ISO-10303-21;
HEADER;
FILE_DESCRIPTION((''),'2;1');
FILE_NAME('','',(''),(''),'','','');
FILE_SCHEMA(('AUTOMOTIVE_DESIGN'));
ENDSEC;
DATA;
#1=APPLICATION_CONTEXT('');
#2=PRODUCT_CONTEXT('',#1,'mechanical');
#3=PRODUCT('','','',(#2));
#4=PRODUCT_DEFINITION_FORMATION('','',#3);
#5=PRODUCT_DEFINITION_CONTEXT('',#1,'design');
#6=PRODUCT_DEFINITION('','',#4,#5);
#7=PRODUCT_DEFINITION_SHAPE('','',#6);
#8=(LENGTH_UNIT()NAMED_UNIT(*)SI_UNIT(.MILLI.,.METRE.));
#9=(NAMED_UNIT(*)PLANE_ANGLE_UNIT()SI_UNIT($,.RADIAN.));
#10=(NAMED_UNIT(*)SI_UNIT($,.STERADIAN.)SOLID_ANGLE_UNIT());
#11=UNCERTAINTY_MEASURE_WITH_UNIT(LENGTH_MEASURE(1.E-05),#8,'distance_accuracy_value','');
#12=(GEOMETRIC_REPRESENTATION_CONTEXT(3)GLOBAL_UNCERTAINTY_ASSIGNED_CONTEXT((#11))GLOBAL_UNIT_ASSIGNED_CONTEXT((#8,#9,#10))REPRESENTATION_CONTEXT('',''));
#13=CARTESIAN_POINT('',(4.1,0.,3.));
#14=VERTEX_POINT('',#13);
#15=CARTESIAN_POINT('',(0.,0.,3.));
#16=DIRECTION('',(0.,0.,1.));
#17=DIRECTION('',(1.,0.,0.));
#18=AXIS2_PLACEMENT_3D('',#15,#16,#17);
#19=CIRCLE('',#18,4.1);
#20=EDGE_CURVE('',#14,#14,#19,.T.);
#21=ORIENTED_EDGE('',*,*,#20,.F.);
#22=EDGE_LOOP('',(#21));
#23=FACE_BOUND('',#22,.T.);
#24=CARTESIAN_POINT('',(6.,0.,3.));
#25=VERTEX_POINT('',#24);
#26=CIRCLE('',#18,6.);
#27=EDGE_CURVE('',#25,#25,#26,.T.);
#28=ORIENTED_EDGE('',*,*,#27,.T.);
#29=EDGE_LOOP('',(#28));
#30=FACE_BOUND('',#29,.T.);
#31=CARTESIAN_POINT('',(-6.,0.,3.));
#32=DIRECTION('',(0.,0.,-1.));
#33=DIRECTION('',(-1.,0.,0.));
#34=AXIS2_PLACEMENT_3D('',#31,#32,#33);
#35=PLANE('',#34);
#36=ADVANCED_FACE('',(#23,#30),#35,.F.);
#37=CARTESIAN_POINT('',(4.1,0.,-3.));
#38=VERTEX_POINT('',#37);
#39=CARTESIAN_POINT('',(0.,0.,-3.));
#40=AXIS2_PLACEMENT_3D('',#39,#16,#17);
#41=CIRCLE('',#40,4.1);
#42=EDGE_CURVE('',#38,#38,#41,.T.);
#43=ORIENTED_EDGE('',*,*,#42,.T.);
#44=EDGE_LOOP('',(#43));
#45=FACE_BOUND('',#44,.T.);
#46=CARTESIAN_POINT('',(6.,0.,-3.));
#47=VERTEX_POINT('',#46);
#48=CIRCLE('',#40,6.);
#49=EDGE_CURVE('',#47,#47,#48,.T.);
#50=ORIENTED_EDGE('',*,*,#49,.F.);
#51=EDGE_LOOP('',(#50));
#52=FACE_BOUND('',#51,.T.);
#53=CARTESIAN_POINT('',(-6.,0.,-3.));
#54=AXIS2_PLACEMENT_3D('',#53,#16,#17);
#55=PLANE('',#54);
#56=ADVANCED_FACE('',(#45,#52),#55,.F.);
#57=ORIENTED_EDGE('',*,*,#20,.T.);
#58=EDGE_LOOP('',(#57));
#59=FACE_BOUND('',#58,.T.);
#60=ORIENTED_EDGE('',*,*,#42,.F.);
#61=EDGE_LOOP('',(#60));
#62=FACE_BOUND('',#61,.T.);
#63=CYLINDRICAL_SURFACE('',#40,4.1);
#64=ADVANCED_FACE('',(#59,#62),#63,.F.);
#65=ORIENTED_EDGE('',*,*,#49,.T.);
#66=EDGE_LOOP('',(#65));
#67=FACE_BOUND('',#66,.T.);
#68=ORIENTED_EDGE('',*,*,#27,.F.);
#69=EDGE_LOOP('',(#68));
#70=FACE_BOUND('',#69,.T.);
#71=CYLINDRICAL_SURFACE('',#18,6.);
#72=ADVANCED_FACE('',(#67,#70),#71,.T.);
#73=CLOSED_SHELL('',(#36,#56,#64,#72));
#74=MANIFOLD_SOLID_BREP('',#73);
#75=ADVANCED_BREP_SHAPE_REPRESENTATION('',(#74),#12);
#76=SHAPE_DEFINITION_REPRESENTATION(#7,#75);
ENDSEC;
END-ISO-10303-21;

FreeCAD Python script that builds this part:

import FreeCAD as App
import Part
import Sketcher

V = App.Vector
Q = App.Units.Quantity

doc = App.newDocument("Part")
params = doc.addObject("Spreadsheet::Sheet", "Params")
for row, (alias, value) in enumerate([
    ("sketch1_width", "6 mm"),
    ("revolution_angle", "360 deg"),
    ("sketch2_diameter", "8.2 mm"),
], start=1):
    params.set(f"A{row}", alias)
    params.set(f"B{row}", "=" + value)
    params.setAlias(f"B{row}", alias)

body = doc.addObject("PartDesign::Body", "Body")

# Sketch on XZ plane
sketch1 = body.newObject("Sketcher::SketchObject", "Sketch")
sketch1.AttachmentSupport = (doc.getObject("XZ_Plane"), [""])
sketch1.MapMode = "FlatFace"
sketch1.addGeometry([
    Part.LineSegment(V(-6, 3, 0), V(0, 3, 0)),
    Part.LineSegment(V(0, 3, 0), V(0, -3, 0)),
    Part.LineSegment(V(0, -3, 0), V(-6, -3, 0)),
    Part.LineSegment(V(-6, -3, 0), V(-6, 3, 0)),
], False)
sketch1.addConstraint([
    Sketcher.Constraint("Coincident", 0, 2, 1, 1),
    Sketcher.Constraint("Coincident", 1, 2, 2, 1),
    Sketcher.Constraint("Coincident", 2, 2, 3, 1),
    Sketcher.Constraint("Coincident", 3, 2, 0, 1),
    Sketcher.Constraint("Horizontal", 0),
    Sketcher.Constraint("Vertical", 1),
    Sketcher.Constraint("Horizontal", 2),
    Sketcher.Constraint("Vertical", 3),
    Sketcher.Constraint("Symmetric", 0, 2, 1, 2, -1, 1),
    Sketcher.Constraint("Equal", 2, 1),
    Sketcher.Constraint("DistanceX", 0, 1, 0, 2, Q("6 mm")),
])
sketch1.setExpression("Constraints[10]", "Params.sketch1_width")
revolution = body.newObject("PartDesign::Revolution", "Revolution")
revolution.Profile = sketch1
revolution.ReferenceAxis = (sketch1, ["V_Axis"])
revolution.setExpression("Angle", "Params.revolution_angle")

# Sketch on XY plane
sketch2 = body.newObject("Sketcher::SketchObject", "Sketch001")
sketch2.AttachmentSupport = (doc.getObject("XY_Plane"), [""])
sketch2.MapMode = "FlatFace"
sketch2.AttachmentOffset = App.Placement(V(0, 0, 3), App.Rotation())
sketch2.addGeometry(Part.Circle(V(0, 0, 0), V(0, 0, 1), 4.1), False)
sketch2.addConstraint([
    Sketcher.Constraint("Coincident", 0, 3, -1, 1),
    Sketcher.Constraint("Diameter", 0, Q("8.2 mm")),
])
sketch2.setExpression("Constraints[1]", "Params.sketch2_diameter")
pocket1 = body.newObject("PartDesign::Pocket", "Pocket")
pocket1.Profile = sketch2
pocket1.Type = "ThroughAll"

doc.recompute()
